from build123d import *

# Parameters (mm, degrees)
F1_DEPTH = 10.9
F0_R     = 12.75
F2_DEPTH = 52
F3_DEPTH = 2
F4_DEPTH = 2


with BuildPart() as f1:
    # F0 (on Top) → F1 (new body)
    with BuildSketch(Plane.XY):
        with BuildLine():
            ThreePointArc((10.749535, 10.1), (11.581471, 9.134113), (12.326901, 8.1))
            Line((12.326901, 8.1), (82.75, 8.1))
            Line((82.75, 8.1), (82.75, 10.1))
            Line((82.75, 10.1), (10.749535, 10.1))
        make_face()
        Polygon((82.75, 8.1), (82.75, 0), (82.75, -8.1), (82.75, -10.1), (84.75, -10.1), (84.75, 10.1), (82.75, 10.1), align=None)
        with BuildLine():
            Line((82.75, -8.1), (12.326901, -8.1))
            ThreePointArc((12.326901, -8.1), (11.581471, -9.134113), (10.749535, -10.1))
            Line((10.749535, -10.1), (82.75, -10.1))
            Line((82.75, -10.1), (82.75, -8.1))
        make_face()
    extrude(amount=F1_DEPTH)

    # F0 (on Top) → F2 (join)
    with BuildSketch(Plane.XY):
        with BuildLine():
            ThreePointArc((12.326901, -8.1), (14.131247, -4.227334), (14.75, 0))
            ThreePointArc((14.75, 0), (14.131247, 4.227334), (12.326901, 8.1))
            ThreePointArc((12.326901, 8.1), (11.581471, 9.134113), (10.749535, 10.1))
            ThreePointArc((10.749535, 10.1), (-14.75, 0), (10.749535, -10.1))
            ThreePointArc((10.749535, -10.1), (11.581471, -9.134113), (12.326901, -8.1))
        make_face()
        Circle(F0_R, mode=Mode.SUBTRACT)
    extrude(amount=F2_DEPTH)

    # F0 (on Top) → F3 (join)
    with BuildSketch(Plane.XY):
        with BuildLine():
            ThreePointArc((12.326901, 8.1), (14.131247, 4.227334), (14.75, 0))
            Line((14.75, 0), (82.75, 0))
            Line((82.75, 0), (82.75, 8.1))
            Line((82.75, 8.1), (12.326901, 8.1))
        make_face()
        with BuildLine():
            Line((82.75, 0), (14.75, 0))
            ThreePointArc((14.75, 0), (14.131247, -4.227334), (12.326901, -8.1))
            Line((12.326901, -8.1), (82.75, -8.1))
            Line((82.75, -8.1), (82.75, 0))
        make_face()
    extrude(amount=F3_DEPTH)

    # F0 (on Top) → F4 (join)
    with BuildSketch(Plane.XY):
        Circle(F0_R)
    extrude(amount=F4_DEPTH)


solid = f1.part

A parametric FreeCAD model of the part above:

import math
import FreeCAD as App
import Part
import Sketcher

doc = App.newDocument("Part")
body = doc.addObject("PartDesign::Body", "Body")

sketch1 = body.newObject("Sketcher::SketchObject", "Sketch")
sketch1.AttachmentSupport = (doc.getObject("XY_Plane"), [""])
sketch1.MapMode = "FlatFace"
sketch1.addGeometry([
    Part.ArcOfCircle(Part.Circle(App.Vector(-0.000035, -0.000024, 0), App.Vector(0, 0, 1), 14.750042), math.radians(33.308897), math.radians(43.215591)),
    Part.LineSegment(App.Vector(12.326901, 8.1, 0), App.Vector(82.75, 8.1, 0)),
    Part.LineSegment(App.Vector(82.75, 8.1, 0), App.Vector(82.75, -8.1, 0)),
    Part.LineSegment(App.Vector(82.75, -8.1, 0), App.Vector(12.326901, -8.1, 0)),
    Part.ArcOfCircle(Part.Circle(App.Vector(-0.000035, 0.000024, 0), App.Vector(0, 0, 1), 14.750042), math.radians(-43.215591), math.radians(-33.308897)),
    Part.LineSegment(App.Vector(10.749535, -10.1, 0), App.Vector(84.75, -10.1, 0)),
    Part.LineSegment(App.Vector(84.75, -10.1, 0), App.Vector(84.75, 10.1, 0)),
    Part.LineSegment(App.Vector(84.75, 10.1, 0), App.Vector(10.749535, 10.1, 0)),
], False)
sketch1.addConstraint([
    Sketcher.Constraint("Coincident", 0, 1, 1, 1),
    Sketcher.Constraint("Coincident", 1, 2, 2, 1),
    Sketcher.Constraint("Coincident", 2, 2, 3, 1),
    Sketcher.Constraint("Coincident", 3, 2, 4, 2),
    Sketcher.Constraint("Coincident", 4, 1, 5, 1),
    Sketcher.Constraint("Coincident", 5, 2, 6, 1),
    Sketcher.Constraint("Coincident", 6, 2, 7, 1),
    Sketcher.Constraint("Coincident", 7, 2, 0, 2),
    Sketcher.Constraint("Horizontal", 1),
    Sketcher.Constraint("Vertical", 2),
    Sketcher.Constraint("Horizontal", 3),
    Sketcher.Constraint("Horizontal", 5),
    Sketcher.Constraint("Vertical", 6),
    Sketcher.Constraint("Horizontal", 7),
    Sketcher.Constraint("Equal", 0, 4),
    Sketcher.Constraint("Symmetric", 0, 3, 4, 3, -1),
    Sketcher.Constraint("Vertical", 0, 1, 3, 2),
    Sketcher.Constraint("Vertical", 4, 1, 7, 2),
    Sketcher.Constraint("DistanceY", 2, 2, 2, 1, 16.2),
    Sketcher.Constraint("DistanceY", 6, 1, 6, 2, 20.2),
    Sketcher.Constraint("DistanceX", 2, 2, 5, 2, 2.0),
    Sketcher.Constraint("DistanceX", -1, 1, 1, 2, 82.75),
    Sketcher.Constraint("DistanceX", 1, 1, 1, 2, 70.423099),
    Sketcher.Constraint("Radius", 0, 14.750042),
    Sketcher.Constraint("DistanceX", 5, 1, 5, 2, 74.000465),
])
pad1 = body.newObject("PartDesign::Pad", "Pad")
pad1.Profile = sketch1
pad1.Length = 10.9

sketch2 = body.newObject("Sketcher::SketchObject", "Sketch001")
sketch2.AttachmentSupport = (doc.getObject("XY_Plane"), [""])
sketch2.MapMode = "FlatFace"
sketch2.addGeometry([
    Part.ArcOfCircle(Part.Circle(App.Vector(0.000001, 0.000001, 0), App.Vector(0, 0, 1), 14.749999), math.radians(-33.308897), math.radians(-0.000002)),
    Part.ArcOfCircle(Part.Circle(App.Vector(0.000001, -0.000001, 0), App.Vector(0, 0, 1), 14.749999), math.radians(0.000002), math.radians(33.308897)),
    Part.ArcOfCircle(Part.Circle(App.Vector(-0.000035, -0.000024, 0), App.Vector(0, 0, 1), 14.750042), math.radians(33.308897), math.radians(43.215591)),
    Part.ArcOfCircle(Part.Circle(App.Vector(0, 0, 0), App.Vector(0, 0, 1), 14.75), math.radians(43.215616), math.radians(316.784384)),
    Part.ArcOfCircle(Part.Circle(App.Vector(-0.000035, 0.000024, 0), App.Vector(0, 0, 1), 14.750042), math.radians(-43.215591), math.radians(-33.308897)),
    Part.Circle(App.Vector(0, 0, 0), App.Vector(0, 0, 1), 12.75),
], False)
sketch2.addConstraint([
    Sketcher.Constraint("Coincident", 0, 2, 1, 1),
    Sketcher.Constraint("Coincident", 1, 2, 2, 1),
    Sketcher.Constraint("Coincident", 2, 2, 3, 1),
    Sketcher.Constraint("Coincident", 3, 2, 4, 1),
    Sketcher.Constraint("Coincident", 4, 2, 0, 1),
    Sketcher.Constraint("Coincident", 0, 3, -1, 1),
    Sketcher.Constraint("Coincident", 1, 3, -1, 1),
    Sketcher.Constraint("Coincident", 3, 3, -1, 1),
    Sketcher.Constraint("Coincident", 5, 3, -1, 1),
    Sketcher.Constraint("PointOnObject", 0, 2, -1),
    Sketcher.Constraint("Diameter", 5, 25.5),
    Sketcher.Constraint("Radius", 0, 14.749999),
    Sketcher.Constraint("Radius", 3, 14.75),
    Sketcher.Constraint("DistanceY", 1, 2, 2, 2, 2.0),
    Sketcher.Constraint("DistanceY", 3, 2, 4, 2, 2.0),
    Sketcher.Constraint("DistanceY", -1, 1, 1, 2, 8.1),
    Sketcher.Constraint("DistanceY", 3, 2, -1, 1, 10.1),
    Sketcher.Constraint("Radius", 2, 14.750042),
    Sketcher.Constraint("Radius", 4, 14.750042),
])
pad2 = body.newObject("PartDesign::Pad", "Pad001")
pad2.Profile = sketch2
pad2.Length = 52

sketch3 = body.newObject("Sketcher::SketchObject", "Sketch002")
sketch3.AttachmentSupport = (doc.getObject("XY_Plane"), [""])
sketch3.MapMode = "FlatFace"
sketch3.addGeometry([
    Part.ArcOfCircle(Part.Circle(App.Vector(0, 0, 0), App.Vector(0, 0, 1), 15), math.radians(0), math.radians(33)),
    Part.ArcOfCircle(Part.Circle(App.Vector(0, 0, 0), App.Vector(0, 0, 1), 15), math.radians(-33), math.radians(0)),
    Part.LineSegment(App.Vector(12, -8, 0), App.Vector(83, -8, 0)),
    Part.LineSegment(App.Vector(83, -8, 0), App.Vector(83, 8, 0)),
    Part.LineSegment(App.Vector(83, 8, 0), App.Vector(12, 8, 0)),
], False)
sketch3.addConstraint([
    Sketcher.Constraint("Tangent", 0, 1, 1, 2),
    Sketcher.Constraint("Coincident", 1, 1, 2, 1),
    Sketcher.Constraint("Coincident", 2, 2, 3, 1),
    Sketcher.Constraint("Coincident", 3, 2, 4, 1),
    Sketcher.Constraint("Coincident", 4, 2, 0, 2),
    Sketcher.Constraint("Horizontal", 2),
    Sketcher.Constraint("Vertical", 3),
    Sketcher.Constraint("Horizontal", 4),
    Sketcher.Constraint("Coincident", 0, 3, -1, 1),
    Sketcher.Constraint("Equal", 0, 1),
    Sketcher.Constraint("PointOnObject", 0, 1, -1),
    Sketcher.Constraint("Vertical", 1, 1, 4, 2),
    Sketcher.Constraint("Radius", 0, 14.749999),
    Sketcher.Constraint("DistanceY", 3, 1, 3, 2, 16.2),
    Sketcher.Constraint("DistanceX", 0, 1, 2, 2, 68.0),
])
pad3 = body.newObject("PartDesign::Pad", "Pad002")
pad3.Profile = sketch3
pad3.Length = 2

sketch4 = body.newObject("Sketcher::SketchObject", "Sketch003")
sketch4.AttachmentSupport = (doc.getObject("XY_Plane"), [""])
sketch4.MapMode = "FlatFace"
sketch4.addGeometry(Part.Circle(App.Vector(0, 0, 0), App.Vector(0, 0, 1), 13), False)
sketch4.addConstraint([
    Sketcher.Constraint("Coincident", 0, 3, -1, 1),
    Sketcher.Constraint("Diameter", 0, 25.5),
])
pad4 = body.newObject("PartDesign::Pad", "Pad003")
pad4.Profile = sketch4
pad4.Length = 2

doc.recompute()
